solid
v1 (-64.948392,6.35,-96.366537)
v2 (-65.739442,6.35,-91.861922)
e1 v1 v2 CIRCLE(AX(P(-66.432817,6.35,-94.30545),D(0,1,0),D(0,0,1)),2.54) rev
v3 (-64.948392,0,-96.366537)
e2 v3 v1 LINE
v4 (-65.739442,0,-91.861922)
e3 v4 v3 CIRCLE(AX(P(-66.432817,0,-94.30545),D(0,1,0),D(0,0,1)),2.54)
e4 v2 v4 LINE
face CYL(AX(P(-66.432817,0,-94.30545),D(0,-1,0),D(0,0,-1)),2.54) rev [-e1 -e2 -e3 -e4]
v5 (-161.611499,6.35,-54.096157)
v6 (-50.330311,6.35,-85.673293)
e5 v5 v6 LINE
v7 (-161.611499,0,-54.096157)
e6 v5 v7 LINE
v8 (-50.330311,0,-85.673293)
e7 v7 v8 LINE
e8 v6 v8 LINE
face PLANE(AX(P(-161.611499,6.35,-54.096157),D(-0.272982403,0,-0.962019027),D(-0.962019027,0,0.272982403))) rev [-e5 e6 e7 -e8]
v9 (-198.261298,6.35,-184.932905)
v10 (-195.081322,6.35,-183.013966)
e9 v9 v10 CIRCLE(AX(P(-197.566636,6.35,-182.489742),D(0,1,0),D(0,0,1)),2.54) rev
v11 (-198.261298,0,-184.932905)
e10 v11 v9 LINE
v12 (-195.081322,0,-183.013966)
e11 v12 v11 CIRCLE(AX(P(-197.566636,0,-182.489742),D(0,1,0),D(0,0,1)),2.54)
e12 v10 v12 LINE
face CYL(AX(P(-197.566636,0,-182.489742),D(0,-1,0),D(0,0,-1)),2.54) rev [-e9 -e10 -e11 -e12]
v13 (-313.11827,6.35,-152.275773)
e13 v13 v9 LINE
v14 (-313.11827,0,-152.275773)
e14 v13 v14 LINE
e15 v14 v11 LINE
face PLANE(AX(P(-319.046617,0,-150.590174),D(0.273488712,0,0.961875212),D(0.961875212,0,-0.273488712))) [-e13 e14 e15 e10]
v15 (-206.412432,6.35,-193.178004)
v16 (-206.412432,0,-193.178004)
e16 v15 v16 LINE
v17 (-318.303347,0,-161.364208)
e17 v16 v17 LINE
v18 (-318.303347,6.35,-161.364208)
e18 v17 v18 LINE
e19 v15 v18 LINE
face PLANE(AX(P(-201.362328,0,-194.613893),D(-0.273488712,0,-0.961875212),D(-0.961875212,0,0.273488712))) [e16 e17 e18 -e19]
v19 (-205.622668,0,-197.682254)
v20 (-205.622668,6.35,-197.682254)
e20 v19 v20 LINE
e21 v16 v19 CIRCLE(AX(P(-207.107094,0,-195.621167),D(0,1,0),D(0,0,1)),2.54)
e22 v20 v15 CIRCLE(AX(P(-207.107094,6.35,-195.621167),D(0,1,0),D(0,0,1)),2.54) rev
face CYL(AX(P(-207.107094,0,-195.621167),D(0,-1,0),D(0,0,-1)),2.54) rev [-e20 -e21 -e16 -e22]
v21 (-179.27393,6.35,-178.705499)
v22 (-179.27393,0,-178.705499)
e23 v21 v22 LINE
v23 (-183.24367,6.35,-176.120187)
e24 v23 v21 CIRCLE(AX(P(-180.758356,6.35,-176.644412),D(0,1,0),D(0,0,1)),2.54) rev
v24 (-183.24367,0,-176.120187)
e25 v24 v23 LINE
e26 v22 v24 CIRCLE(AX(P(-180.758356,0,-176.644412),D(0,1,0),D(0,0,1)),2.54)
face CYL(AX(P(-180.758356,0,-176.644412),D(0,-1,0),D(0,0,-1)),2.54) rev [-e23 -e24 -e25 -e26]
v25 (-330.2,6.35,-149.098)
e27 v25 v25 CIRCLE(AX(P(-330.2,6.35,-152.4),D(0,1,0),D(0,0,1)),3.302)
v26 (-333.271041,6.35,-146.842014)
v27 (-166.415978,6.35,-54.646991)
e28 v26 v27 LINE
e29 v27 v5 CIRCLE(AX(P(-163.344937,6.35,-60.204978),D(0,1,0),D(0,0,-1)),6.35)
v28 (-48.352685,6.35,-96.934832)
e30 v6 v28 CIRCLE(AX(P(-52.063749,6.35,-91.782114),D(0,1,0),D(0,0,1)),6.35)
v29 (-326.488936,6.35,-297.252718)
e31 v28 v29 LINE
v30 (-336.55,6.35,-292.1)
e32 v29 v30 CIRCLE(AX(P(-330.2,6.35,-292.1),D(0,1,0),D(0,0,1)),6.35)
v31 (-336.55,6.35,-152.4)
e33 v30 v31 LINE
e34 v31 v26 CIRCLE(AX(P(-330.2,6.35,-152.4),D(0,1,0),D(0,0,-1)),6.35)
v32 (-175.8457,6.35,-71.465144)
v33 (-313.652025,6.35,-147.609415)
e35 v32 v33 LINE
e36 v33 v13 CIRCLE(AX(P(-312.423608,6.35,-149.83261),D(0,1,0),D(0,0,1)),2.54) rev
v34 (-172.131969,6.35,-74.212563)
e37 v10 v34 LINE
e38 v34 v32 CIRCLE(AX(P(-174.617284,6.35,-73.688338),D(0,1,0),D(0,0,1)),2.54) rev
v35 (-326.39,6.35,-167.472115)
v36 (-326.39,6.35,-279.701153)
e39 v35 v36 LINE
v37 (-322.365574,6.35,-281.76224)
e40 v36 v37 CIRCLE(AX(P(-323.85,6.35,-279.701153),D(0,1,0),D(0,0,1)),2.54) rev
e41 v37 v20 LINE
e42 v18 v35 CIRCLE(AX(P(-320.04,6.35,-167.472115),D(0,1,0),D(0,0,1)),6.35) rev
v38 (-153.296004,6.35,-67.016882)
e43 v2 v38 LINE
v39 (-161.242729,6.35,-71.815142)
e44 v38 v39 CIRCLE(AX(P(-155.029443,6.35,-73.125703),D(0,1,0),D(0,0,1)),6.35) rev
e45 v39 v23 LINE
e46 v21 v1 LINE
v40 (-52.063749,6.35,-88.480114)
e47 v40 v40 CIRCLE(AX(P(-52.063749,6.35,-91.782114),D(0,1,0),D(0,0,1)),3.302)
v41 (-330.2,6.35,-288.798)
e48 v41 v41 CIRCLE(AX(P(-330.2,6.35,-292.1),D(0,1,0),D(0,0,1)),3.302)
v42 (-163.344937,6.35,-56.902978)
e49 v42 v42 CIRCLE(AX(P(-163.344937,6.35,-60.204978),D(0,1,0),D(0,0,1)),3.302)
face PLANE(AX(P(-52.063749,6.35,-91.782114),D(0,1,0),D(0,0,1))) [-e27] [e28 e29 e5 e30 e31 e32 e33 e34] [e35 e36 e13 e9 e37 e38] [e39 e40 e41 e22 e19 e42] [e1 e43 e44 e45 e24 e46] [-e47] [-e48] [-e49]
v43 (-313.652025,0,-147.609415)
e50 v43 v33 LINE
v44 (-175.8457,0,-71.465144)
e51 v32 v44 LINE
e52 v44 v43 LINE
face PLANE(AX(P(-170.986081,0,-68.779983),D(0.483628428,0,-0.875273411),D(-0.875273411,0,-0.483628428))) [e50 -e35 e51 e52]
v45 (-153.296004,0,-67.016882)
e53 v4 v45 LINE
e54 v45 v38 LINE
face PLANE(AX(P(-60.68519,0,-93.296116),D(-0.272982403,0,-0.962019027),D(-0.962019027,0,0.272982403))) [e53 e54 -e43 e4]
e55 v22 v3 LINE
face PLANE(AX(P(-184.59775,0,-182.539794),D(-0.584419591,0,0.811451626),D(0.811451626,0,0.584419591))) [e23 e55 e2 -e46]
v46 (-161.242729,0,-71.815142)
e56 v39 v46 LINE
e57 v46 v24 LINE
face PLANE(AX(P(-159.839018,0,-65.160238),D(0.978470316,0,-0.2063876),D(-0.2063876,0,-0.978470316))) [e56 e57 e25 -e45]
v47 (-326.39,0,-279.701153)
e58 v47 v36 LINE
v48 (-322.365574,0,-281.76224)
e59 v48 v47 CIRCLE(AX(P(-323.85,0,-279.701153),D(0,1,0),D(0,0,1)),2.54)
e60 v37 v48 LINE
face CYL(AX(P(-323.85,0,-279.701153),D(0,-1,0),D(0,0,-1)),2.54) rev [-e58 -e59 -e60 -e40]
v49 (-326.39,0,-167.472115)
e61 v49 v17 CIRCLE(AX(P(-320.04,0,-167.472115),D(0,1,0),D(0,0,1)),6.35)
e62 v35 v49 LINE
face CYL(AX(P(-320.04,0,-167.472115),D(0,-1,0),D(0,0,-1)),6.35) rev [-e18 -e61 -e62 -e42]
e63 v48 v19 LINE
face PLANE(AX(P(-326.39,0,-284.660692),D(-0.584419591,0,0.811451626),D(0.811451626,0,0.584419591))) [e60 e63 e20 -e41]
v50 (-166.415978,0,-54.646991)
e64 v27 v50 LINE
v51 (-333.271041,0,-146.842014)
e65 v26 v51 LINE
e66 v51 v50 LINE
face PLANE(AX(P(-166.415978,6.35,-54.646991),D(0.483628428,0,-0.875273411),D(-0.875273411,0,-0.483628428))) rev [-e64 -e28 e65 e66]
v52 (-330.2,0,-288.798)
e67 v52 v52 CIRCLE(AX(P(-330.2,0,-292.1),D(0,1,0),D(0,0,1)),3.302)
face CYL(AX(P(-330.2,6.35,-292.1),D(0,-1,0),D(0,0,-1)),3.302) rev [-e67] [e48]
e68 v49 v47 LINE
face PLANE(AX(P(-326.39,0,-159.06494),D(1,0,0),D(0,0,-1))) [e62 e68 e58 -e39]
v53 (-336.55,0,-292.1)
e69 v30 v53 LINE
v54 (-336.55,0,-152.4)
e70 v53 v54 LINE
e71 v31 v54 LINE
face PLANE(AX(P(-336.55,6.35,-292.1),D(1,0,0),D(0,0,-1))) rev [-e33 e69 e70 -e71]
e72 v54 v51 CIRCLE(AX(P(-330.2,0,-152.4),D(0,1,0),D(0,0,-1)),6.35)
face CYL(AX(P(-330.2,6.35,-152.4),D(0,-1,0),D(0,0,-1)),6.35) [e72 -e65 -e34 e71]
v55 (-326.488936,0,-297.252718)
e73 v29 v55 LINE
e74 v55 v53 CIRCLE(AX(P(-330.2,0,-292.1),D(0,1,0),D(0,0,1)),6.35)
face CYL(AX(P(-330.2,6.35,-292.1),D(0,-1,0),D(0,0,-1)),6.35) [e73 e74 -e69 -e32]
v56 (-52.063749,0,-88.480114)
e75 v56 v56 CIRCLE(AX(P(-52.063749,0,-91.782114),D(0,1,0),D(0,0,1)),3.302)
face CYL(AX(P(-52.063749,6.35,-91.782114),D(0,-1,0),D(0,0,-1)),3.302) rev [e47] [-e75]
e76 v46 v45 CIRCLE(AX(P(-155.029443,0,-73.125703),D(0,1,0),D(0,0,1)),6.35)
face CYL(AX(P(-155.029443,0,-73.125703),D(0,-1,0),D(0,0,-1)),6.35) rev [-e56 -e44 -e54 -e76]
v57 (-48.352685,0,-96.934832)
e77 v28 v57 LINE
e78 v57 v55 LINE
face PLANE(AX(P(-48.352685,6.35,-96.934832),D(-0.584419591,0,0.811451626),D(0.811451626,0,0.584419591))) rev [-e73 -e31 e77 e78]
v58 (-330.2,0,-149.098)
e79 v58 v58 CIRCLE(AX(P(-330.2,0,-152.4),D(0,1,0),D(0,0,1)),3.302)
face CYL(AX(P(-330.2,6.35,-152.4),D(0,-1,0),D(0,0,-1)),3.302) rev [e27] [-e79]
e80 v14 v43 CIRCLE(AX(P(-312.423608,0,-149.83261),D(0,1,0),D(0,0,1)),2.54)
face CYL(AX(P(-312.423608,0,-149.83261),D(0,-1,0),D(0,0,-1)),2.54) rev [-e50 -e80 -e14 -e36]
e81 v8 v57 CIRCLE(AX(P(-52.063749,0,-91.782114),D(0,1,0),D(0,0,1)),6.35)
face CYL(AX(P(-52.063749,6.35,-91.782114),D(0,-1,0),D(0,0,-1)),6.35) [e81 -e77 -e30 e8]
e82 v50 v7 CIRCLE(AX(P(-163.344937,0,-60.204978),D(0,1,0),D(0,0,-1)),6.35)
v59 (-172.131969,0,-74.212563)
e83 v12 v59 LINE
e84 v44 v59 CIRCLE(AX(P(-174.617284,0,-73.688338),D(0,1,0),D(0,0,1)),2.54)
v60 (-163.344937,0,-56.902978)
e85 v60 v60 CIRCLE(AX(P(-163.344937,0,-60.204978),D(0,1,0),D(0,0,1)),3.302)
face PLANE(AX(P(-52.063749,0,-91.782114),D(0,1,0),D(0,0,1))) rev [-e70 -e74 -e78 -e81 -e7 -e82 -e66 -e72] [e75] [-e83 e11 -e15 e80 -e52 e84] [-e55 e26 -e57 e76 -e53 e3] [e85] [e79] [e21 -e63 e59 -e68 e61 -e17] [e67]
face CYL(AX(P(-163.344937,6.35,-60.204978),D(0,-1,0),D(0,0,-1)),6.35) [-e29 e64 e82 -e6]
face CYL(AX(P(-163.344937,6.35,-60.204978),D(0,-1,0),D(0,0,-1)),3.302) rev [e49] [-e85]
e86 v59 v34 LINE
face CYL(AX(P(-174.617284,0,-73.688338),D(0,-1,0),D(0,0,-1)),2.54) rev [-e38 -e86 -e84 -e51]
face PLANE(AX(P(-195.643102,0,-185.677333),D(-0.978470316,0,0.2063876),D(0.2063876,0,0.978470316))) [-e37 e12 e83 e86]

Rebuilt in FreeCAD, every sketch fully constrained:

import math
import FreeCAD as App
import Part
import Sketcher
from FreeCAD import Vector
Q = App.Units.Quantity


def edges_at(feature, points):
    """Names of the edges that pass closest to the given points."""
    edges = feature.Shape.Edges
    near = lambda p: min(range(len(edges)), key=lambda i: edges[i].distToShape(Part.Vertex(*p))[0])
    return sorted({f"Edge{near(p) + 1}" for p in points})


def add_polygon(sketch, points):
    """Adds a closed chain of lines whose ends are joined by coincident constraints."""
    first, n = sketch.GeometryCount, len(points)
    for a, b in zip(points, points[1:] + points[:1]):
        sketch.addGeometry(Part.LineSegment(App.Vector(*a, 0), App.Vector(*b, 0)), False)
    for i in range(n):
        sketch.addConstraint(Sketcher.Constraint("Coincident", first + i, 2, first + (i + 1) % n, 1))

doc = App.newDocument("Part")
body = doc.addObject("PartDesign::Body", "Body")

# Sketch on XZ plane
sketch1 = doc.addObject("Sketcher::SketchObject", "Sketch")
body.addObject(sketch1)
sketch1.AttachmentSupport = (doc.XZ_Plane, [""])
sketch1.MapMode = "FlatFace"
sketch1.addGeometry([
    Part.LineSegment(Vector(-48.4, -96.9, 0), Vector(-326.5, -297.3, 0)),  # 0
    Part.ArcOfCircle(Part.Circle(Vector(-330.2, -292.1, 0), Vector(0, 0, 1), 6.3), math.radians(-180), math.radians(-54)),  # 1
    Part.LineSegment(Vector(-336.6, -292.1, 0), Vector(-336.6, -152.4, 0)),  # 2
    Part.ArcOfCircle(Part.Circle(Vector(-330.2, -152.4, 0), Vector(0, 0, 1), 6.4), math.radians(119), math.radians(180)),  # 3
    Part.LineSegment(Vector(-333.3, -146.8, 0), Vector(-166.4, -54.6, 0)),  # 4
    Part.ArcOfCircle(Part.Circle(Vector(-163.3, -60.2, 0), Vector(0, 0, 1), 6.3), math.radians(74), math.radians(119)),  # 5
    Part.LineSegment(Vector(-161.6, -54.1, 0), Vector(-50.3, -85.7, 0)),  # 6
    Part.ArcOfCircle(Part.Circle(Vector(-52.1, -91.8, 0), Vector(0, 0, 1), 6.3), math.radians(-54), math.radians(74)),  # 7
    Part.Circle(Vector(-330.2, -292.1, 0), Vector(0, 0, 1), 3.3),  # 8
    Part.Circle(Vector(-52.1, -91.8, 0), Vector(0, 0, 1), 3.3),  # 9
    Part.Circle(Vector(-163.3, -60.2, 0), Vector(0, 0, 1), 3.3),  # 10
    Part.Circle(Vector(-330.2, -152.4, 0), Vector(0, 0, 1), 3.3),  # 11
], False)
sketch1.addConstraint([
    Sketcher.Constraint("Tangent", 0, 2, 1, 2),
    Sketcher.Constraint("Tangent", 1, 1, 2, 1),
    Sketcher.Constraint("Tangent", 2, 2, 3, 2),
    Sketcher.Constraint("Tangent", 3, 1, 4, 1),
    Sketcher.Constraint("Tangent", 4, 2, 5, 2),
    Sketcher.Constraint("Tangent", 5, 1, 6, 1),
    Sketcher.Constraint("Tangent", 6, 2, 7, 2),
    Sketcher.Constraint("Tangent", 7, 1, 0, 1),
    Sketcher.Constraint("Vertical", 2),
    Sketcher.Constraint("Coincident", 8, 3, 1, 3),
    Sketcher.Constraint("Coincident", 9, 3, 7, 3),
    Sketcher.Constraint("Coincident", 10, 3, 5, 3),
    Sketcher.Constraint("Coincident", 11, 3, 3, 3),
    Sketcher.Constraint("Equal", 1, 3),
    Sketcher.Constraint("Equal", 3, 5),
    Sketcher.Constraint("Equal", 5, 7),
    Sketcher.Constraint("Equal", 8, 9),
    Sketcher.Constraint("Equal", 9, 10),
    Sketcher.Constraint("Equal", 10, 11),
    Sketcher.Constraint("Diameter", 8, Q("0.26 in")),
    Sketcher.Constraint("Radius", 1, Q("0.25 in")),
    Sketcher.Constraint("DistanceY", 2, 1, 2, 2, Q("5.5 in")),
    Sketcher.Constraint("DistanceX", 1, 3, -1, 1, Q("13 in")),
    Sketcher.Constraint("DistanceY", 3, 3, -1, 1, Q("6 in")),
    Sketcher.Constraint("DistanceX", 5, 1, -1, 1, Q("161.611499 mm")),
    Sketcher.Constraint("DistanceX", 0, 2, 10, 3, Q("163.143998 mm")),
    Sketcher.Constraint("Distance", 0, Q("342.76381 mm")),
    Sketcher.Constraint("DistanceX", 7, 3, -1, 1, Q("52.063749 mm")),
])
pad1 = doc.addObject("PartDesign::Pad", "Pad")
body.addObject(pad1)
pad1.Profile = sketch1
pad1.Length = Q("0.25 in")
pad1.Reversed = True

# Sketch on XZ plane
sketch2 = doc.addObject("Sketcher::SketchObject", "Sketch001")
body.addObject(sketch2)
sketch2.AttachmentSupport = (doc.XZ_Plane, [""])
sketch2.MapMode = "FlatFace"
sketch2.AttachmentOffset = App.Placement(Vector(0, 0, -0.25 * 25.4), App.Rotation())
add_polygon(sketch2, [(-201, -195), (-326, -285), (-326, -159)])  # lines 0-2
add_polygon(sketch2, [(-196, -186), (-319, -151), (-171, -69)])  # lines 3-5
add_polygon(sketch2, [(-61, -93), (-185, -183), (-160, -65)])  # lines 6-8
sketch2.addConstraint([
    Sketcher.Constraint("Vertical", 1),
    Sketcher.Constraint("Parallel", 2, 3),
    Sketcher.Constraint("Parallel", 0, 6),
    Sketcher.Constraint("Parallel", 5, 7),
    Sketcher.Constraint("DistanceX", 0, 2, -1, 1, Q("12.85 in")),
    Sketcher.Constraint("Distance", 6, Q("6.0120001 in")),
    Sketcher.Constraint("DistanceY", 1, 1, 1, 2, Q("125.595752 mm")),
    Sketcher.Constraint("DistanceY", 0, 2, 2, 2, Q("90.046799 mm")),
    Sketcher.Constraint("DistanceY", 2, 2, 6, 2, Q("12.074099 mm")),
    Sketcher.Constraint("DistanceX", 3, 2, 7, 2, Q("159.2076 mm")),
    Sketcher.Constraint("Distance", 0, Q("154.079021 mm")),
    Sketcher.Constraint("Distance", 5, Q("119.46949 mm")),
    Sketcher.Constraint("Distance", 8, Q("103.068469 mm")),
    Sketcher.Constraint("DistanceY", 0, 2, -1, 1, Q("284.660692 mm")),
    Sketcher.Constraint("DistanceX", 4, 2, -1, 1, Q("170.986081 mm")),
    Sketcher.Constraint("DistanceX", 6, 2, -1, 1, Q("184.59775 mm")),
    Sketcher.Constraint("DistanceX", 3, 2, 2, 2, Q("117.684289 mm")),
    Sketcher.Constraint("DistanceY", 2, 2, 3, 2, Q("44.02372 mm")),
])
pocket1 = doc.addObject("PartDesign::Pocket", "Pocket")
body.addObject(pocket1)
pocket1.Profile = sketch2
pocket1.Type = "ThroughAll"
pocket1.Reversed = True
doc.recompute()

fillet = doc.addObject("PartDesign::Fillet", "Fillet")
body.addObject(fillet)
fillet.Base = (pocket1, edges_at(pocket1, [(-159.839, 3.175, -65.16)]))
fillet.Radius = Q("0.25 in")
doc.recompute()

fillet2 = doc.addObject("PartDesign::Fillet", "Fillet001")
body.addObject(fillet2)
fillet2.Base = (fillet, edges_at(fillet, [(-170.986, 3.175, -68.78)]))
fillet2.Radius = Q("0.1 in")
doc.recompute()

fillet3 = doc.addObject("PartDesign::Fillet", "Fillet002")
body.addObject(fillet3)
fillet3.Base = (fillet2, edges_at(fillet2, [(-319.047, 3.175, -150.59)]))
fillet3.Radius = Q("0.1 in")
doc.recompute()

fillet4 = doc.addObject("PartDesign::Fillet", "Fillet003")
body.addObject(fillet4)
fillet4.Base = (fillet3, edges_at(fillet3, [(-326.39, 3.175, -159.065)]))
fillet4.Radius = Q("0.25 in")
doc.recompute()

fillet5 = doc.addObject("PartDesign::Fillet", "Fillet004")
body.addObject(fillet5)
fillet5.Base = (fillet4, edges_at(fillet4, [(-60.685, 3.175, -93.296), (-326.39, 3.175, -284.661)]))
fillet5.Radius = Q("0.1 in")
doc.recompute()

fillet6 = doc.addObject("PartDesign::Fillet", "Fillet005")
body.addObject(fillet6)
fillet6.Base = (fillet5, edges_at(fillet5, [(-195.643, 3.175, -185.677), (-184.598, 3.175, -182.54), (-201.362, 3.175, -194.614)]))
fillet6.Radius = Q("0.1 in")

doc.recompute()
